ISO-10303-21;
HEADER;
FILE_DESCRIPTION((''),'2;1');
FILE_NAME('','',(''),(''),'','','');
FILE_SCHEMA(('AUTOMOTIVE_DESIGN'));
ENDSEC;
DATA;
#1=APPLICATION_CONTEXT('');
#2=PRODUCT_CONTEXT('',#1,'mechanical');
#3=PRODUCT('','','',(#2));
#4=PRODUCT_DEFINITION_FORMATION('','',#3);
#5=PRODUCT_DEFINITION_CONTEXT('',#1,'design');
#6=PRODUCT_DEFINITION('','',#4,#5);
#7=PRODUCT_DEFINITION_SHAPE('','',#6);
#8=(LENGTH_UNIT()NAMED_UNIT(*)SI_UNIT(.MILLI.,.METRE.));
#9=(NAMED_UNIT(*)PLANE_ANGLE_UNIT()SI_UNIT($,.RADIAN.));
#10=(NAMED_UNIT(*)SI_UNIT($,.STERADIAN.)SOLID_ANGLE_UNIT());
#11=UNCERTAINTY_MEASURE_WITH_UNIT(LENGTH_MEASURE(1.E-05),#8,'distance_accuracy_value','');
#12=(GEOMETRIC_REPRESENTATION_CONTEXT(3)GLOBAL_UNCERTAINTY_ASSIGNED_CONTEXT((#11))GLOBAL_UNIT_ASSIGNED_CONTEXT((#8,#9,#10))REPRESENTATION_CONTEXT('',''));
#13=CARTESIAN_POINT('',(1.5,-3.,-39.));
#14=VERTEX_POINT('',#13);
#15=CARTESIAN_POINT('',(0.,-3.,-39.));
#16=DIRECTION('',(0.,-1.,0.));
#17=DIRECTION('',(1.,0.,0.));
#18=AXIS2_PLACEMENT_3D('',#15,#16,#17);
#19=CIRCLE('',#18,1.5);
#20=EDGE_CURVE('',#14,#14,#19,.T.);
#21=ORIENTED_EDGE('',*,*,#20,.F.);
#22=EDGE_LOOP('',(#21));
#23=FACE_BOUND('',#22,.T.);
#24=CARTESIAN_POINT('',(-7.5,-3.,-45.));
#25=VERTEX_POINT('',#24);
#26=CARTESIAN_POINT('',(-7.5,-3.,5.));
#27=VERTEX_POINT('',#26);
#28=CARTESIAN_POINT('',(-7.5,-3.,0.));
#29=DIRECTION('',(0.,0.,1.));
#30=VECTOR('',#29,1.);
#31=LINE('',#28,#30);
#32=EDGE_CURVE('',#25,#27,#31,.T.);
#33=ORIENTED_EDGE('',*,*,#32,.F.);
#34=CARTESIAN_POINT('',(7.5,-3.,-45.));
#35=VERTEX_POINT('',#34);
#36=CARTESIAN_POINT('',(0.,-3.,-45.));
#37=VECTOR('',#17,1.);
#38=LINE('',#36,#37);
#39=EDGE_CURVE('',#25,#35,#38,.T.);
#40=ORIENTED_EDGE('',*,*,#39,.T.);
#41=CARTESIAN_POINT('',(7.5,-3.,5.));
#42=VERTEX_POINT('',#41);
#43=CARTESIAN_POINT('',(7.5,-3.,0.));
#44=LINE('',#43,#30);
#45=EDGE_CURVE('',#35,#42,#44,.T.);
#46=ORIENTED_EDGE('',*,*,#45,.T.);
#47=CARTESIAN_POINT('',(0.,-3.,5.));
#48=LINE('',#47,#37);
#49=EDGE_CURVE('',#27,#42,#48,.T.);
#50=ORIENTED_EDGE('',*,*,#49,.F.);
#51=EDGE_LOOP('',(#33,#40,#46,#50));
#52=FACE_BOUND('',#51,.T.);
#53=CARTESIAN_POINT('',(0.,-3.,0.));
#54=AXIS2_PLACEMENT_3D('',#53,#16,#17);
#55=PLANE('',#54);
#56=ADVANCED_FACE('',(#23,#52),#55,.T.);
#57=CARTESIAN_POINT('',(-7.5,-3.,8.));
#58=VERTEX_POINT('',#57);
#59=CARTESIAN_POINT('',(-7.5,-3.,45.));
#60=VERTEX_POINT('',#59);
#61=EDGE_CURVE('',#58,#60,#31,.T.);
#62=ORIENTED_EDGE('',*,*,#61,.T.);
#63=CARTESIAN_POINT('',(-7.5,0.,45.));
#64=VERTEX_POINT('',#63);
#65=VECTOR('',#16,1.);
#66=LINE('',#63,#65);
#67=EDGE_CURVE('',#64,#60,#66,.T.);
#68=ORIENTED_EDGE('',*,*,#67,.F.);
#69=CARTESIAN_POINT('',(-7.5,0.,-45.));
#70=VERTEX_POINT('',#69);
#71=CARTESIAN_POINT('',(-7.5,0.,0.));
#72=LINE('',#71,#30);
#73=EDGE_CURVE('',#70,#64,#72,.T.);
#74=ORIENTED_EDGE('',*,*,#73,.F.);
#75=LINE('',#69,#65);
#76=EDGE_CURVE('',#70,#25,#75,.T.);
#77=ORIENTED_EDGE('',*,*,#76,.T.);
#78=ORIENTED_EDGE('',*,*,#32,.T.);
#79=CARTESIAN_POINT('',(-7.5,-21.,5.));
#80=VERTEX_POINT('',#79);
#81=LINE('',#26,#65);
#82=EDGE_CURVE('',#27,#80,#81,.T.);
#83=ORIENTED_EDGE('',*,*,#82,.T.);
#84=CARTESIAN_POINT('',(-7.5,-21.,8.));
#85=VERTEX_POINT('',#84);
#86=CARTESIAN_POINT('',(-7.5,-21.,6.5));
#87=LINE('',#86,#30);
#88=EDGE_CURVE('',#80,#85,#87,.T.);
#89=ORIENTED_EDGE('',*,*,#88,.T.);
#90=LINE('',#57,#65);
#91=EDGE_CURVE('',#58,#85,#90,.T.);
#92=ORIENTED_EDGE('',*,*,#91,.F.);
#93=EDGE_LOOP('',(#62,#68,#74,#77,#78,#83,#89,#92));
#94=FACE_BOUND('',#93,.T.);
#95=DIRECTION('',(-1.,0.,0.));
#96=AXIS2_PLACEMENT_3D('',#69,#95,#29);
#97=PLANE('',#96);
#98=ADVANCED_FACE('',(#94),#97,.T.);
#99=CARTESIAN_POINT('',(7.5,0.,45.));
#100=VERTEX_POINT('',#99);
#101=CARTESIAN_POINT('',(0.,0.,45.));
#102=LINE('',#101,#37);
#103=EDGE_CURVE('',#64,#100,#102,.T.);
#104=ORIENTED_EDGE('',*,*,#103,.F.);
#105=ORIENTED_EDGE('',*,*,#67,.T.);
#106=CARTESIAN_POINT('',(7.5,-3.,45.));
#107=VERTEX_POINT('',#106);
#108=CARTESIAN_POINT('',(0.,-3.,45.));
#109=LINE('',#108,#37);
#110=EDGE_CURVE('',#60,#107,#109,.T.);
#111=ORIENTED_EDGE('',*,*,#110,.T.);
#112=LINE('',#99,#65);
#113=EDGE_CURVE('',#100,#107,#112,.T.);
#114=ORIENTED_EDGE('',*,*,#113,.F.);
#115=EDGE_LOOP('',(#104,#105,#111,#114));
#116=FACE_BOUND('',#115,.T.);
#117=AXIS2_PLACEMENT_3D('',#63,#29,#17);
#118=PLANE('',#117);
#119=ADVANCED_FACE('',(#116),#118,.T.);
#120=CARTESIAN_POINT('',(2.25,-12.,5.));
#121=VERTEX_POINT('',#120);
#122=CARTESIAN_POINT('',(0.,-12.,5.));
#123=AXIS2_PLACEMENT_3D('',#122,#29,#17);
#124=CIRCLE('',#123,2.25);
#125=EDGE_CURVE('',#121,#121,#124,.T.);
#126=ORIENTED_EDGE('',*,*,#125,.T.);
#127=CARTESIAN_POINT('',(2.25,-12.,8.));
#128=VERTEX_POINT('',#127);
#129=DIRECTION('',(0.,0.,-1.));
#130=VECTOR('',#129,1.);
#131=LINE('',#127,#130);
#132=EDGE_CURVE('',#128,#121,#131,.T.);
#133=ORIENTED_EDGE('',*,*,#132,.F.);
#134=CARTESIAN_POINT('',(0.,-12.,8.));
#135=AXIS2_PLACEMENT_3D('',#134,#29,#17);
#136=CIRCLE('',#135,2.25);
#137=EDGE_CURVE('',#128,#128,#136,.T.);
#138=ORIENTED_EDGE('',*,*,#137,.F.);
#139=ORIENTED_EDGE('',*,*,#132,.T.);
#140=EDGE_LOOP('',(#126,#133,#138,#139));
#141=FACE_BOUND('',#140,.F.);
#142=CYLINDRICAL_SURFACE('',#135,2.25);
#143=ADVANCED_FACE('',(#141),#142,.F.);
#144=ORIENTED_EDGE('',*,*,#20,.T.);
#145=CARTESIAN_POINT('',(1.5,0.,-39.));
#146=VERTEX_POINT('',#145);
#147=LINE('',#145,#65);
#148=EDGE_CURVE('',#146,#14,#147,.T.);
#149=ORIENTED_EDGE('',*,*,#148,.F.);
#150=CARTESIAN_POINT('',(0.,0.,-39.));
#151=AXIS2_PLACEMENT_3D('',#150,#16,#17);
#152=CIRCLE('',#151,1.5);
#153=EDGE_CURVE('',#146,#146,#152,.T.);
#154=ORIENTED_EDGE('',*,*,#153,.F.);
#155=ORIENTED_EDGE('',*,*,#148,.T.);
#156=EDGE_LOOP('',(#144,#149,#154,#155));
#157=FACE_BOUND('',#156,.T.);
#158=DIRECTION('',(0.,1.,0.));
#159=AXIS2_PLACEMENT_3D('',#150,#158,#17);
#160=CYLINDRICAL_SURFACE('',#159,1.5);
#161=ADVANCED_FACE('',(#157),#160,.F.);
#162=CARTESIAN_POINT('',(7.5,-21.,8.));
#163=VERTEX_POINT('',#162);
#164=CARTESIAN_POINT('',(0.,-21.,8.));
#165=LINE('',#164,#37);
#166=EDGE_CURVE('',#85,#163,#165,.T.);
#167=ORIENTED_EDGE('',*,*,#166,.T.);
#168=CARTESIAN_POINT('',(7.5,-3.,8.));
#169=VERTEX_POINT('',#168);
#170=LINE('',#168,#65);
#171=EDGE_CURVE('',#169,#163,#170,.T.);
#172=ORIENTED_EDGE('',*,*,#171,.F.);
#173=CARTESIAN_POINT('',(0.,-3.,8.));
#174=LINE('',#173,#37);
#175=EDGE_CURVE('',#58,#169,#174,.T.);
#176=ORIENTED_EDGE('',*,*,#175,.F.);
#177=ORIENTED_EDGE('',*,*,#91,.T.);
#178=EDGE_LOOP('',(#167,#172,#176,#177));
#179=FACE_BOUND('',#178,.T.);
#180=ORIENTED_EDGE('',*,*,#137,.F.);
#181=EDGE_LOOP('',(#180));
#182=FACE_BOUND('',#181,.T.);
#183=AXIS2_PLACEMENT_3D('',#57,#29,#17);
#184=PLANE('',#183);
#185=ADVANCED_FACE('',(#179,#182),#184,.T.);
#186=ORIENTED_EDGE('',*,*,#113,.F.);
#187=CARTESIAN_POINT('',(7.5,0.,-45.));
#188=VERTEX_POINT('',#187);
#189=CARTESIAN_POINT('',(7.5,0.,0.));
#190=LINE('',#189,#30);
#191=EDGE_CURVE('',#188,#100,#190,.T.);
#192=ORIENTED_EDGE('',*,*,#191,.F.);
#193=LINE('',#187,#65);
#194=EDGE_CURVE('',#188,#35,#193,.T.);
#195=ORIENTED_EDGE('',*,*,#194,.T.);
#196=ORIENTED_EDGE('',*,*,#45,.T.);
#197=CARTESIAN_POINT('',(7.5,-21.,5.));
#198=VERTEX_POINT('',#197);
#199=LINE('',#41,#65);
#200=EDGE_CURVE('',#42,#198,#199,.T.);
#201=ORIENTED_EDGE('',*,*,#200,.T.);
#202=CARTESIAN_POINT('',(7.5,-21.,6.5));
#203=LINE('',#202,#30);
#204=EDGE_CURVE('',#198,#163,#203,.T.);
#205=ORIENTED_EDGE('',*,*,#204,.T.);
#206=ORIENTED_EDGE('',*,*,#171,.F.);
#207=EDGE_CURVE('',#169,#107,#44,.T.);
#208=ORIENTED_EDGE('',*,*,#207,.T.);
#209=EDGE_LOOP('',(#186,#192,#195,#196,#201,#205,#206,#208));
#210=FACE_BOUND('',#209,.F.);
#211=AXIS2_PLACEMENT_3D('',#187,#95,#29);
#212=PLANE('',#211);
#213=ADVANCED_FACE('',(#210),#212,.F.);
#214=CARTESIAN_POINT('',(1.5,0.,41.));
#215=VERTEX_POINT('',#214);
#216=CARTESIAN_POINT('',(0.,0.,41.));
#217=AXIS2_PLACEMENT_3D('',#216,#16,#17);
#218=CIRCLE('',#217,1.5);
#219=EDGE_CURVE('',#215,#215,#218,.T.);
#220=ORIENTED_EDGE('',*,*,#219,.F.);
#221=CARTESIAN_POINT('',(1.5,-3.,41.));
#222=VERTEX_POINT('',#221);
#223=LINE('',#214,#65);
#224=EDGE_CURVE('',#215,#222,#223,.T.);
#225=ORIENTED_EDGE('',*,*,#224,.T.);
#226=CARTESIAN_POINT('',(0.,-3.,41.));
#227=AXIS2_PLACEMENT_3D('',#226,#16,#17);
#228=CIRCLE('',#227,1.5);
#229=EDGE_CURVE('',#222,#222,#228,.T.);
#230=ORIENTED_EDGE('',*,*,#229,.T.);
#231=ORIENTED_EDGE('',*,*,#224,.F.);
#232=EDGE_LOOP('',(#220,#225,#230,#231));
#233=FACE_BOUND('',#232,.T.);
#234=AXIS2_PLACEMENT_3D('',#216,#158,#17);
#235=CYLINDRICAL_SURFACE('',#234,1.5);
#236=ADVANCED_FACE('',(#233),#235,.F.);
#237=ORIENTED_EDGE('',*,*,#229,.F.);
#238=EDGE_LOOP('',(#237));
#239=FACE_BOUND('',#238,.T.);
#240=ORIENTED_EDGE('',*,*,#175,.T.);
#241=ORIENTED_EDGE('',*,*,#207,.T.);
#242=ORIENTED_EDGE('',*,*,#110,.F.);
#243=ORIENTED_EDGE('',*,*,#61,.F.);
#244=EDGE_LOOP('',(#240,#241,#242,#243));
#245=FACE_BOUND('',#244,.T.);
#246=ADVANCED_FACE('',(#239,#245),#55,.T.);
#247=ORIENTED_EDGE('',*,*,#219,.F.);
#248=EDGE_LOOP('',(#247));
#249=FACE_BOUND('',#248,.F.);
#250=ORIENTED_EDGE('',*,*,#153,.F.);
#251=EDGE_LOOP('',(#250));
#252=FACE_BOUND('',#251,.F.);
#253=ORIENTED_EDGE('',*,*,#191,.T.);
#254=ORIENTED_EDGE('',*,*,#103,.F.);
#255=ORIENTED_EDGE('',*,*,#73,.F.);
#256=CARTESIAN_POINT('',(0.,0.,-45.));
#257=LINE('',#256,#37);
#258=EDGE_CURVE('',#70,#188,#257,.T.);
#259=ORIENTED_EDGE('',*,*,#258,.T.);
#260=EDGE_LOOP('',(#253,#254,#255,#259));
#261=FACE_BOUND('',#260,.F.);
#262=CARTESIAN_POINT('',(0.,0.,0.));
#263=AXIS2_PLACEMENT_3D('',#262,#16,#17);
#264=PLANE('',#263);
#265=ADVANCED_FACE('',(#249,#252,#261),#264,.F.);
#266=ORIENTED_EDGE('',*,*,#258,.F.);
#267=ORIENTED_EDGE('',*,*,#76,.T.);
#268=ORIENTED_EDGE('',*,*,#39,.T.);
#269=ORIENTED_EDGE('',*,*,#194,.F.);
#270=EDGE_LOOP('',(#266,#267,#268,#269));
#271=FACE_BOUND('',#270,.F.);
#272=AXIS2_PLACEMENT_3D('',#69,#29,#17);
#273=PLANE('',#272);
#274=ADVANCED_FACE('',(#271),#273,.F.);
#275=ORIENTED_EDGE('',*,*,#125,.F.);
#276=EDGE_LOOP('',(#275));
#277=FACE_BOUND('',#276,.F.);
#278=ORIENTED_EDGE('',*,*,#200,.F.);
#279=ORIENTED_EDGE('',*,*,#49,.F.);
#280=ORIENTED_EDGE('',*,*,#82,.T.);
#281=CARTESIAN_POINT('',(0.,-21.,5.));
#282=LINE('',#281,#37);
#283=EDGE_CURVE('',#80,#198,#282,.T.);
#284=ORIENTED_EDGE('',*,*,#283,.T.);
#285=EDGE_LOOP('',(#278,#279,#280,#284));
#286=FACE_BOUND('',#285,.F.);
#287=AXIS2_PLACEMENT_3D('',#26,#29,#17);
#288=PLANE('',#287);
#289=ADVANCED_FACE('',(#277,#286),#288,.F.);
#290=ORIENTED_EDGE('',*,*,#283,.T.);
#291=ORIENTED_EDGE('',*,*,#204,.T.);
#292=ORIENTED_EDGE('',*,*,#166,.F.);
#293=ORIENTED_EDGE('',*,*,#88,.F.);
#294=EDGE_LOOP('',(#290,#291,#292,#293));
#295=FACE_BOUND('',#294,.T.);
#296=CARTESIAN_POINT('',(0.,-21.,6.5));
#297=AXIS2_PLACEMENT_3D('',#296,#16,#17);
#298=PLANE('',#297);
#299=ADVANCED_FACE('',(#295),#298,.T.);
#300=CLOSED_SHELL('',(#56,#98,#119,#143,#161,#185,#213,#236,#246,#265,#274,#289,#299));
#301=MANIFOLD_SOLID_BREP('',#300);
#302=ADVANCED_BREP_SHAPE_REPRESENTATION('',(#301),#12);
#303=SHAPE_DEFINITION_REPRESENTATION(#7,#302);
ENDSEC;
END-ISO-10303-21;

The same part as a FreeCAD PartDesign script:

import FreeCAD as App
import Part
import Sketcher

doc = App.newDocument("Part")
body = doc.addObject("PartDesign::Body", "Body")

# Sketch on XZ plane
sketch1 = doc.addObject("Sketcher::SketchObject", "Sketch")
body.addObject(sketch1)
sketch1.AttachmentSupport = (doc.XZ_Plane, [""])
sketch1.MapMode = "FlatFace"
sketch1.addGeometry(Part.LineSegment(App.Vector(-7.5, 45, 0), App.Vector(-7.5, -45, 0)), False)
sketch1.addGeometry(Part.LineSegment(App.Vector(-7.5, -45, 0), App.Vector(7.5, -45, 0)), False)
sketch1.addGeometry(Part.LineSegment(App.Vector(7.5, -45, 0), App.Vector(7.5, 45, 0)), False)
sketch1.addGeometry(Part.LineSegment(App.Vector(7.5, 45, 0), App.Vector(-7.5, 45, 0)), False)
sketch1.addGeometry(Part.Circle(App.Vector(0, -39, 0), App.Vector(0, 0, 1), 1.5), False)
sketch1.addGeometry(Part.Circle(App.Vector(0, 41, 0), App.Vector(0, 0, 1), 1.5), False)
sketch1.addConstraint(Sketcher.Constraint("Coincident", 0, 2, 1, 1))
sketch1.addConstraint(Sketcher.Constraint("Coincident", 1, 2, 2, 1))
sketch1.addConstraint(Sketcher.Constraint("Coincident", 2, 2, 3, 1))
sketch1.addConstraint(Sketcher.Constraint("Coincident", 3, 2, 0, 1))
sketch1.addConstraint(Sketcher.Constraint("Vertical", 0))
sketch1.addConstraint(Sketcher.Constraint("Horizontal", 1))
sketch1.addConstraint(Sketcher.Constraint("Vertical", 2))
sketch1.addConstraint(Sketcher.Constraint("Horizontal", 3))
sketch1.addConstraint(Sketcher.Constraint("Equal", 4, 5))
sketch1.addConstraint(Sketcher.Constraint("Symmetric", 0, 2, 2, 2, -1, 1))
sketch1.addConstraint(Sketcher.Constraint("PointOnObject", 4, 3, -2))
sketch1.addConstraint(Sketcher.Constraint("PointOnObject", 5, 3, -2))
sketch1.addConstraint(Sketcher.Constraint("Diameter", 4, 3.0))
sketch1.addConstraint(Sketcher.Constraint("DistanceX", 1, 1, 1, 2, 15.0))
sketch1.addConstraint(Sketcher.Constraint("DistanceY", 0, 2, 0, 1, 90.0))
sketch1.addConstraint(Sketcher.Constraint("DistanceY", 4, 3, -1, 1, 39.0))
sketch1.addConstraint(Sketcher.Constraint("DistanceY", -1, 1, 5, 3, 41.0))
pad1 = doc.addObject("PartDesign::Pad", "Pad")
body.addObject(pad1)
pad1.Profile = sketch1
pad1.Length = 3

# Sketch on XZ plane
sketch2 = doc.addObject("Sketcher::SketchObject", "Sketch001")
body.addObject(sketch2)
sketch2.AttachmentSupport = (doc.XZ_Plane, [""])
sketch2.MapMode = "FlatFace"
sketch2.AttachmentOffset = App.Placement(App.Vector(0, 0, 3), App.Rotation())
sketch2.addGeometry(Part.LineSegment(App.Vector(-7.5, 8, 0), App.Vector(-7.5, 5, 0)), False)
sketch2.addGeometry(Part.LineSegment(App.Vector(-7.5, 5, 0), App.Vector(7.5, 5, 0)), False)
sketch2.addGeometry(Part.LineSegment(App.Vector(7.5, 5, 0), App.Vector(7.5, 8, 0)), False)
sketch2.addGeometry(Part.LineSegment(App.Vector(7.5, 8, 0), App.Vector(-7.5, 8, 0)), False)
sketch2.addConstraint(Sketcher.Constraint("Coincident", 0, 2, 1, 1))
sketch2.addConstraint(Sketcher.Constraint("Coincident", 1, 2, 2, 1))
sketch2.addConstraint(Sketcher.Constraint("Coincident", 2, 2, 3, 1))
sketch2.addConstraint(Sketcher.Constraint("Coincident", 3, 2, 0, 1))
sketch2.addConstraint(Sketcher.Constraint("Vertical", 0))
sketch2.addConstraint(Sketcher.Constraint("Horizontal", 1))
sketch2.addConstraint(Sketcher.Constraint("Vertical", 2))
sketch2.addConstraint(Sketcher.Constraint("Horizontal", 3))
sketch2.addConstraint(Sketcher.Constraint("DistanceX", 1, 1, 1, 2, 15.0))
sketch2.addConstraint(Sketcher.Constraint("DistanceY", 0, 2, 0, 1, 3.0))
sketch2.addConstraint(Sketcher.Constraint("DistanceY", -1, 1, 0, 2, 5.0))
sketch2.addConstraint(Sketcher.Constraint("DistanceX", 0, 2, -1, 1, 7.5))
pad2 = doc.addObject("PartDesign::Pad", "Pad001")
body.addObject(pad2)
pad2.Profile = sketch2
pad2.Length = 18

# Sketch on XY plane
sketch3 = doc.addObject("Sketcher::SketchObject", "Sketch002")
body.addObject(sketch3)
sketch3.AttachmentSupport = (doc.XY_Plane, [""])
sketch3.MapMode = "FlatFace"
sketch3.AttachmentOffset = App.Placement(App.Vector(0, 0, 8), App.Rotation())
sketch3.addGeometry(Part.Circle(App.Vector(0, -12, 0), App.Vector(0, 0, 1), 2.2), False)
sketch3.addConstraint(Sketcher.Constraint("PointOnObject", 0, 3, -2))
sketch3.addConstraint(Sketcher.Constraint("Diameter", 0, 4.5))
sketch3.addConstraint(Sketcher.Constraint("DistanceY", 0, 3, -1, 1, 12.0))
pocket1 = doc.addObject("PartDesign::Pocket", "Pocket")
body.addObject(pocket1)
pocket1.Profile = sketch3
pocket1.Type = "ThroughAll"

doc.recompute()
